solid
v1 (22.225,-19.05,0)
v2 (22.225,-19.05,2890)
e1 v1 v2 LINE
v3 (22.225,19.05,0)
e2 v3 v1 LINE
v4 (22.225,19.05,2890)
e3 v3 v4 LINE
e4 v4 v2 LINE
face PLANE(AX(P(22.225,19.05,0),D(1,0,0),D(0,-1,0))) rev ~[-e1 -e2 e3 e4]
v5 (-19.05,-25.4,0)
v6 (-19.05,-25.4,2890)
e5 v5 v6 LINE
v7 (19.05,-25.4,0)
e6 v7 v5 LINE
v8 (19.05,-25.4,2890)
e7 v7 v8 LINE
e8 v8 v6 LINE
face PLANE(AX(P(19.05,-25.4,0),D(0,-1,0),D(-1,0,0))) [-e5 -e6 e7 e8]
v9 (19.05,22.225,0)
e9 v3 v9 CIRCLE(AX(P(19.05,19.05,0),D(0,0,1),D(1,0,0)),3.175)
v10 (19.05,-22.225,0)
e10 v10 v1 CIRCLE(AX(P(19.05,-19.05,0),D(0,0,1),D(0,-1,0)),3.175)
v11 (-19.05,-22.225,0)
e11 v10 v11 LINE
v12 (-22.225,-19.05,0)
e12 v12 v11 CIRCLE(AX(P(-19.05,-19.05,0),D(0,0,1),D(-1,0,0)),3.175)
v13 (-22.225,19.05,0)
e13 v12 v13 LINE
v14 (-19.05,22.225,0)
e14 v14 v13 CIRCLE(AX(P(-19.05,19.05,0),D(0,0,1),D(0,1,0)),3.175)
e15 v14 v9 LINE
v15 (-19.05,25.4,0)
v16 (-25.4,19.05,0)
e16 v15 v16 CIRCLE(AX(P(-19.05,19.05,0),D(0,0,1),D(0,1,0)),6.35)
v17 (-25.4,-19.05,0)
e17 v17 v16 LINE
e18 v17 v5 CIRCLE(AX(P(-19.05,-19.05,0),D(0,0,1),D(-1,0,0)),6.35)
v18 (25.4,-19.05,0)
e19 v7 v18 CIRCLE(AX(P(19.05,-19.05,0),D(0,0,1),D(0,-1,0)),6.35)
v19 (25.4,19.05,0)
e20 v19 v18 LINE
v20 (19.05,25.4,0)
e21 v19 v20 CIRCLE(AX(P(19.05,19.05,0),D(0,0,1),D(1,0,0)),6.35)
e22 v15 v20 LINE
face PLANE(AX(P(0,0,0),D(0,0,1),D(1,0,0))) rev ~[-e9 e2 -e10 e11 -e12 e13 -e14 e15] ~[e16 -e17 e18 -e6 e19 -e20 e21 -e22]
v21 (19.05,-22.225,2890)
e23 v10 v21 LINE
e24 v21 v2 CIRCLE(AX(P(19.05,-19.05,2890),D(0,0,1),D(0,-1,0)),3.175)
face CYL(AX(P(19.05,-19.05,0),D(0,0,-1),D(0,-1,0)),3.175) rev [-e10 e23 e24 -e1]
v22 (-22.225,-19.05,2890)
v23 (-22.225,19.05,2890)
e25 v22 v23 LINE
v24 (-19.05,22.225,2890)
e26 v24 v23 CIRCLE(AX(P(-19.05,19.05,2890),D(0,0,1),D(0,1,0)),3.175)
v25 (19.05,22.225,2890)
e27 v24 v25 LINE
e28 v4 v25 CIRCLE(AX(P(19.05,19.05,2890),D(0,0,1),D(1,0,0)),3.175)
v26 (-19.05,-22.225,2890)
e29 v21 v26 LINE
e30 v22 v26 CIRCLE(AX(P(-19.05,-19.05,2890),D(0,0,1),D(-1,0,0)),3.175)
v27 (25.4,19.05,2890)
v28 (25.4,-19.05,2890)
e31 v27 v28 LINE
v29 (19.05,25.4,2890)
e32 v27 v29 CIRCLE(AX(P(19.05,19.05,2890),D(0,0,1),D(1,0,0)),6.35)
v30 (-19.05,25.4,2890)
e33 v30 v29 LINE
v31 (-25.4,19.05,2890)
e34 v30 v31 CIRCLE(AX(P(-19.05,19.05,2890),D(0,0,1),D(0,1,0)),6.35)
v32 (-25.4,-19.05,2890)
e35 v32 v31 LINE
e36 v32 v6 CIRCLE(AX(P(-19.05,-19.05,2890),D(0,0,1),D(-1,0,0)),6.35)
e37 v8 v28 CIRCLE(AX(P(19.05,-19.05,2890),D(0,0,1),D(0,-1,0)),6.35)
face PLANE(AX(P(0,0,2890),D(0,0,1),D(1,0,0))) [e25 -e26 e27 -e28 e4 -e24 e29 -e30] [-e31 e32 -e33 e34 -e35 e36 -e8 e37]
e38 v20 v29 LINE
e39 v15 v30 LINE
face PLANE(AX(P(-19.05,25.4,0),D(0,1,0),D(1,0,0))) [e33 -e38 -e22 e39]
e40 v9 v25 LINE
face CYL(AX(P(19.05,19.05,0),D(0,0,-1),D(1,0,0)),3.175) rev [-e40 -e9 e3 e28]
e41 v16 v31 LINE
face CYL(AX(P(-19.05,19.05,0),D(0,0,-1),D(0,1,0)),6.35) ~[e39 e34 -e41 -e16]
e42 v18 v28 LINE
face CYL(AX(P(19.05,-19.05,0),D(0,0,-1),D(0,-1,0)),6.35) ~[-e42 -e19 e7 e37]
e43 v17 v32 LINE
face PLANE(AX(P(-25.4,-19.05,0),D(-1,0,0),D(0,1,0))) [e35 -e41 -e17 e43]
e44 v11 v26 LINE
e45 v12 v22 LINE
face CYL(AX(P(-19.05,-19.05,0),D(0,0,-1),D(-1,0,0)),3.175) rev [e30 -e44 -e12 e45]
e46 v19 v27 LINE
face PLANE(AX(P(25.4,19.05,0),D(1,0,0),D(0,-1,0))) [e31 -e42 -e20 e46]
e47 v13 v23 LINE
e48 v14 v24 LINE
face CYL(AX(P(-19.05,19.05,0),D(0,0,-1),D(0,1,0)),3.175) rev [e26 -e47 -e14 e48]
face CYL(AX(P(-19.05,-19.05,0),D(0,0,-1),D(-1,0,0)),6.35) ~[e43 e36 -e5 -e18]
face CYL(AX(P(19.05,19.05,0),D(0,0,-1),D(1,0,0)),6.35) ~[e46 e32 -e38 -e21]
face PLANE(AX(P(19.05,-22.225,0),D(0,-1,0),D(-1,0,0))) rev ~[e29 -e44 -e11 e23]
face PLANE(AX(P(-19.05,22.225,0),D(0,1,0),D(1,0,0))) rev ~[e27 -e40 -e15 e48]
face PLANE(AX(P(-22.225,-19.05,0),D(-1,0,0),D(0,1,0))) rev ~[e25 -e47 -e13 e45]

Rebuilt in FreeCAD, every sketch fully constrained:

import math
import FreeCAD as App
import Part
import Sketcher
Q = App.Units.Quantity

doc = App.newDocument("Part")
body = doc.addObject("PartDesign::Body", "Body")

# Sketch on XY plane
sketch1 = doc.addObject("Sketcher::SketchObject", "Sketch")
body.addObject(sketch1)
sketch1.AttachmentSupport = (doc.XY_Plane, [""])
sketch1.MapMode = "FlatFace"
sketch1.addGeometry([
    Part.LineSegment(App.Vector(-25.4, 19.1, 0), App.Vector(-25.4, -19.1, 0)),  # 0
    Part.ArcOfCircle(Part.Circle(App.Vector(-19.1, -19.1, 0), App.Vector(0, 0, 1), 6.3), math.radians(180), math.radians(270)),  # 1
    Part.LineSegment(App.Vector(-19.1, -25.4, 0), App.Vector(19.1, -25.4, 0)),  # 2
    Part.ArcOfCircle(Part.Circle(App.Vector(19.1, -19.1, 0), App.Vector(0, 0, 1), 6.3), math.radians(-90), math.radians(0)),  # 3
    Part.LineSegment(App.Vector(25.4, -19.1, 0), App.Vector(25.4, 19.1, 0)),  # 4
    Part.ArcOfCircle(Part.Circle(App.Vector(19.1, 19.1, 0), App.Vector(0, 0, 1), 6.3), math.radians(0), math.radians(90)),  # 5
    Part.LineSegment(App.Vector(19.1, 25.4, 0), App.Vector(-19.1, 25.4, 0)),  # 6
    Part.ArcOfCircle(Part.Circle(App.Vector(-19.1, 19.1, 0), App.Vector(0, 0, 1), 6.3), math.radians(90), math.radians(180)),  # 7
    Part.ArcOfCircle(Part.Circle(App.Vector(-19.1, 19.1, 0), App.Vector(0, 0, 1), 3.2), math.radians(90), math.radians(180)),  # 8
    Part.LineSegment(App.Vector(-19.1, 22.2, 0), App.Vector(19.1, 22.2, 0)),  # 9
    Part.ArcOfCircle(Part.Circle(App.Vector(19.1, 19.1, 0), App.Vector(0, 0, 1), 3.2), math.radians(0), math.radians(90)),  # 10
    Part.LineSegment(App.Vector(22.2, 19.1, 0), App.Vector(22.2, -19.1, 0)),  # 11
    Part.ArcOfCircle(Part.Circle(App.Vector(19.1, -19.1, 0), App.Vector(0, 0, 1), 3.2), math.radians(-90), math.radians(0)),  # 12
    Part.LineSegment(App.Vector(19.1, -22.2, 0), App.Vector(-19.1, -22.2, 0)),  # 13
    Part.ArcOfCircle(Part.Circle(App.Vector(-19.1, -19.1, 0), App.Vector(0, 0, 1), 3.2), math.radians(180), math.radians(270)),  # 14
    Part.LineSegment(App.Vector(-22.2, -19.1, 0), App.Vector(-22.2, 19.1, 0)),  # 15
], False)
sketch1.addConstraint([
    Sketcher.Constraint("Tangent", 0, 2, 1, 1),
    Sketcher.Constraint("Tangent", 1, 2, 2, 1),
    Sketcher.Constraint("Tangent", 2, 2, 3, 1),
    Sketcher.Constraint("Tangent", 3, 2, 4, 1),
    Sketcher.Constraint("Tangent", 4, 2, 5, 1),
    Sketcher.Constraint("Tangent", 5, 2, 6, 1),
    Sketcher.Constraint("Tangent", 6, 2, 7, 1),
    Sketcher.Constraint("Tangent", 7, 2, 0, 1),
    Sketcher.Constraint("Tangent", 8, 1, 9, 1),
    Sketcher.Constraint("Tangent", 9, 2, 10, 2),
    Sketcher.Constraint("Tangent", 10, 1, 11, 1),
    Sketcher.Constraint("Tangent", 11, 2, 12, 2),
    Sketcher.Constraint("Tangent", 12, 1, 13, 1),
    Sketcher.Constraint("Tangent", 13, 2, 14, 2),
    Sketcher.Constraint("Tangent", 14, 1, 15, 1),
    Sketcher.Constraint("Tangent", 15, 2, 8, 2),
    Sketcher.Constraint("Vertical", 0),
    Sketcher.Constraint("Horizontal", 2),
    Sketcher.Constraint("Vertical", 4),
    Sketcher.Constraint("Horizontal", 6),
    Sketcher.Constraint("Horizontal", 9),
    Sketcher.Constraint("Vertical", 11),
    Sketcher.Constraint("Horizontal", 13),
    Sketcher.Constraint("Vertical", 15),
    Sketcher.Constraint("Coincident", 8, 3, 7, 3),
    Sketcher.Constraint("Coincident", 10, 3, 5, 3),
    Sketcher.Constraint("Coincident", 12, 3, 3, 3),
    Sketcher.Constraint("Equal", 1, 3),
    Sketcher.Constraint("Equal", 3, 5),
    Sketcher.Constraint("Equal", 5, 7),
    Sketcher.Constraint("Equal", 12, 14),
    Sketcher.Constraint("Symmetric", 1, 3, 5, 3, -1, 1),
    Sketcher.Constraint("Equal", 13, 0),
    Sketcher.Constraint("Radius", 1, Q("0.25 in")),
    Sketcher.Constraint("DistanceX", 0, 2, -1, 1, Q("1 in")),
    Sketcher.Constraint("Radius", 8, Q("0.125 in")),
])
pad1 = doc.addObject("PartDesign::Pad", "Pad")
body.addObject(pad1)
pad1.Profile = sketch1
pad1.Length = 2890

doc.recompute()
